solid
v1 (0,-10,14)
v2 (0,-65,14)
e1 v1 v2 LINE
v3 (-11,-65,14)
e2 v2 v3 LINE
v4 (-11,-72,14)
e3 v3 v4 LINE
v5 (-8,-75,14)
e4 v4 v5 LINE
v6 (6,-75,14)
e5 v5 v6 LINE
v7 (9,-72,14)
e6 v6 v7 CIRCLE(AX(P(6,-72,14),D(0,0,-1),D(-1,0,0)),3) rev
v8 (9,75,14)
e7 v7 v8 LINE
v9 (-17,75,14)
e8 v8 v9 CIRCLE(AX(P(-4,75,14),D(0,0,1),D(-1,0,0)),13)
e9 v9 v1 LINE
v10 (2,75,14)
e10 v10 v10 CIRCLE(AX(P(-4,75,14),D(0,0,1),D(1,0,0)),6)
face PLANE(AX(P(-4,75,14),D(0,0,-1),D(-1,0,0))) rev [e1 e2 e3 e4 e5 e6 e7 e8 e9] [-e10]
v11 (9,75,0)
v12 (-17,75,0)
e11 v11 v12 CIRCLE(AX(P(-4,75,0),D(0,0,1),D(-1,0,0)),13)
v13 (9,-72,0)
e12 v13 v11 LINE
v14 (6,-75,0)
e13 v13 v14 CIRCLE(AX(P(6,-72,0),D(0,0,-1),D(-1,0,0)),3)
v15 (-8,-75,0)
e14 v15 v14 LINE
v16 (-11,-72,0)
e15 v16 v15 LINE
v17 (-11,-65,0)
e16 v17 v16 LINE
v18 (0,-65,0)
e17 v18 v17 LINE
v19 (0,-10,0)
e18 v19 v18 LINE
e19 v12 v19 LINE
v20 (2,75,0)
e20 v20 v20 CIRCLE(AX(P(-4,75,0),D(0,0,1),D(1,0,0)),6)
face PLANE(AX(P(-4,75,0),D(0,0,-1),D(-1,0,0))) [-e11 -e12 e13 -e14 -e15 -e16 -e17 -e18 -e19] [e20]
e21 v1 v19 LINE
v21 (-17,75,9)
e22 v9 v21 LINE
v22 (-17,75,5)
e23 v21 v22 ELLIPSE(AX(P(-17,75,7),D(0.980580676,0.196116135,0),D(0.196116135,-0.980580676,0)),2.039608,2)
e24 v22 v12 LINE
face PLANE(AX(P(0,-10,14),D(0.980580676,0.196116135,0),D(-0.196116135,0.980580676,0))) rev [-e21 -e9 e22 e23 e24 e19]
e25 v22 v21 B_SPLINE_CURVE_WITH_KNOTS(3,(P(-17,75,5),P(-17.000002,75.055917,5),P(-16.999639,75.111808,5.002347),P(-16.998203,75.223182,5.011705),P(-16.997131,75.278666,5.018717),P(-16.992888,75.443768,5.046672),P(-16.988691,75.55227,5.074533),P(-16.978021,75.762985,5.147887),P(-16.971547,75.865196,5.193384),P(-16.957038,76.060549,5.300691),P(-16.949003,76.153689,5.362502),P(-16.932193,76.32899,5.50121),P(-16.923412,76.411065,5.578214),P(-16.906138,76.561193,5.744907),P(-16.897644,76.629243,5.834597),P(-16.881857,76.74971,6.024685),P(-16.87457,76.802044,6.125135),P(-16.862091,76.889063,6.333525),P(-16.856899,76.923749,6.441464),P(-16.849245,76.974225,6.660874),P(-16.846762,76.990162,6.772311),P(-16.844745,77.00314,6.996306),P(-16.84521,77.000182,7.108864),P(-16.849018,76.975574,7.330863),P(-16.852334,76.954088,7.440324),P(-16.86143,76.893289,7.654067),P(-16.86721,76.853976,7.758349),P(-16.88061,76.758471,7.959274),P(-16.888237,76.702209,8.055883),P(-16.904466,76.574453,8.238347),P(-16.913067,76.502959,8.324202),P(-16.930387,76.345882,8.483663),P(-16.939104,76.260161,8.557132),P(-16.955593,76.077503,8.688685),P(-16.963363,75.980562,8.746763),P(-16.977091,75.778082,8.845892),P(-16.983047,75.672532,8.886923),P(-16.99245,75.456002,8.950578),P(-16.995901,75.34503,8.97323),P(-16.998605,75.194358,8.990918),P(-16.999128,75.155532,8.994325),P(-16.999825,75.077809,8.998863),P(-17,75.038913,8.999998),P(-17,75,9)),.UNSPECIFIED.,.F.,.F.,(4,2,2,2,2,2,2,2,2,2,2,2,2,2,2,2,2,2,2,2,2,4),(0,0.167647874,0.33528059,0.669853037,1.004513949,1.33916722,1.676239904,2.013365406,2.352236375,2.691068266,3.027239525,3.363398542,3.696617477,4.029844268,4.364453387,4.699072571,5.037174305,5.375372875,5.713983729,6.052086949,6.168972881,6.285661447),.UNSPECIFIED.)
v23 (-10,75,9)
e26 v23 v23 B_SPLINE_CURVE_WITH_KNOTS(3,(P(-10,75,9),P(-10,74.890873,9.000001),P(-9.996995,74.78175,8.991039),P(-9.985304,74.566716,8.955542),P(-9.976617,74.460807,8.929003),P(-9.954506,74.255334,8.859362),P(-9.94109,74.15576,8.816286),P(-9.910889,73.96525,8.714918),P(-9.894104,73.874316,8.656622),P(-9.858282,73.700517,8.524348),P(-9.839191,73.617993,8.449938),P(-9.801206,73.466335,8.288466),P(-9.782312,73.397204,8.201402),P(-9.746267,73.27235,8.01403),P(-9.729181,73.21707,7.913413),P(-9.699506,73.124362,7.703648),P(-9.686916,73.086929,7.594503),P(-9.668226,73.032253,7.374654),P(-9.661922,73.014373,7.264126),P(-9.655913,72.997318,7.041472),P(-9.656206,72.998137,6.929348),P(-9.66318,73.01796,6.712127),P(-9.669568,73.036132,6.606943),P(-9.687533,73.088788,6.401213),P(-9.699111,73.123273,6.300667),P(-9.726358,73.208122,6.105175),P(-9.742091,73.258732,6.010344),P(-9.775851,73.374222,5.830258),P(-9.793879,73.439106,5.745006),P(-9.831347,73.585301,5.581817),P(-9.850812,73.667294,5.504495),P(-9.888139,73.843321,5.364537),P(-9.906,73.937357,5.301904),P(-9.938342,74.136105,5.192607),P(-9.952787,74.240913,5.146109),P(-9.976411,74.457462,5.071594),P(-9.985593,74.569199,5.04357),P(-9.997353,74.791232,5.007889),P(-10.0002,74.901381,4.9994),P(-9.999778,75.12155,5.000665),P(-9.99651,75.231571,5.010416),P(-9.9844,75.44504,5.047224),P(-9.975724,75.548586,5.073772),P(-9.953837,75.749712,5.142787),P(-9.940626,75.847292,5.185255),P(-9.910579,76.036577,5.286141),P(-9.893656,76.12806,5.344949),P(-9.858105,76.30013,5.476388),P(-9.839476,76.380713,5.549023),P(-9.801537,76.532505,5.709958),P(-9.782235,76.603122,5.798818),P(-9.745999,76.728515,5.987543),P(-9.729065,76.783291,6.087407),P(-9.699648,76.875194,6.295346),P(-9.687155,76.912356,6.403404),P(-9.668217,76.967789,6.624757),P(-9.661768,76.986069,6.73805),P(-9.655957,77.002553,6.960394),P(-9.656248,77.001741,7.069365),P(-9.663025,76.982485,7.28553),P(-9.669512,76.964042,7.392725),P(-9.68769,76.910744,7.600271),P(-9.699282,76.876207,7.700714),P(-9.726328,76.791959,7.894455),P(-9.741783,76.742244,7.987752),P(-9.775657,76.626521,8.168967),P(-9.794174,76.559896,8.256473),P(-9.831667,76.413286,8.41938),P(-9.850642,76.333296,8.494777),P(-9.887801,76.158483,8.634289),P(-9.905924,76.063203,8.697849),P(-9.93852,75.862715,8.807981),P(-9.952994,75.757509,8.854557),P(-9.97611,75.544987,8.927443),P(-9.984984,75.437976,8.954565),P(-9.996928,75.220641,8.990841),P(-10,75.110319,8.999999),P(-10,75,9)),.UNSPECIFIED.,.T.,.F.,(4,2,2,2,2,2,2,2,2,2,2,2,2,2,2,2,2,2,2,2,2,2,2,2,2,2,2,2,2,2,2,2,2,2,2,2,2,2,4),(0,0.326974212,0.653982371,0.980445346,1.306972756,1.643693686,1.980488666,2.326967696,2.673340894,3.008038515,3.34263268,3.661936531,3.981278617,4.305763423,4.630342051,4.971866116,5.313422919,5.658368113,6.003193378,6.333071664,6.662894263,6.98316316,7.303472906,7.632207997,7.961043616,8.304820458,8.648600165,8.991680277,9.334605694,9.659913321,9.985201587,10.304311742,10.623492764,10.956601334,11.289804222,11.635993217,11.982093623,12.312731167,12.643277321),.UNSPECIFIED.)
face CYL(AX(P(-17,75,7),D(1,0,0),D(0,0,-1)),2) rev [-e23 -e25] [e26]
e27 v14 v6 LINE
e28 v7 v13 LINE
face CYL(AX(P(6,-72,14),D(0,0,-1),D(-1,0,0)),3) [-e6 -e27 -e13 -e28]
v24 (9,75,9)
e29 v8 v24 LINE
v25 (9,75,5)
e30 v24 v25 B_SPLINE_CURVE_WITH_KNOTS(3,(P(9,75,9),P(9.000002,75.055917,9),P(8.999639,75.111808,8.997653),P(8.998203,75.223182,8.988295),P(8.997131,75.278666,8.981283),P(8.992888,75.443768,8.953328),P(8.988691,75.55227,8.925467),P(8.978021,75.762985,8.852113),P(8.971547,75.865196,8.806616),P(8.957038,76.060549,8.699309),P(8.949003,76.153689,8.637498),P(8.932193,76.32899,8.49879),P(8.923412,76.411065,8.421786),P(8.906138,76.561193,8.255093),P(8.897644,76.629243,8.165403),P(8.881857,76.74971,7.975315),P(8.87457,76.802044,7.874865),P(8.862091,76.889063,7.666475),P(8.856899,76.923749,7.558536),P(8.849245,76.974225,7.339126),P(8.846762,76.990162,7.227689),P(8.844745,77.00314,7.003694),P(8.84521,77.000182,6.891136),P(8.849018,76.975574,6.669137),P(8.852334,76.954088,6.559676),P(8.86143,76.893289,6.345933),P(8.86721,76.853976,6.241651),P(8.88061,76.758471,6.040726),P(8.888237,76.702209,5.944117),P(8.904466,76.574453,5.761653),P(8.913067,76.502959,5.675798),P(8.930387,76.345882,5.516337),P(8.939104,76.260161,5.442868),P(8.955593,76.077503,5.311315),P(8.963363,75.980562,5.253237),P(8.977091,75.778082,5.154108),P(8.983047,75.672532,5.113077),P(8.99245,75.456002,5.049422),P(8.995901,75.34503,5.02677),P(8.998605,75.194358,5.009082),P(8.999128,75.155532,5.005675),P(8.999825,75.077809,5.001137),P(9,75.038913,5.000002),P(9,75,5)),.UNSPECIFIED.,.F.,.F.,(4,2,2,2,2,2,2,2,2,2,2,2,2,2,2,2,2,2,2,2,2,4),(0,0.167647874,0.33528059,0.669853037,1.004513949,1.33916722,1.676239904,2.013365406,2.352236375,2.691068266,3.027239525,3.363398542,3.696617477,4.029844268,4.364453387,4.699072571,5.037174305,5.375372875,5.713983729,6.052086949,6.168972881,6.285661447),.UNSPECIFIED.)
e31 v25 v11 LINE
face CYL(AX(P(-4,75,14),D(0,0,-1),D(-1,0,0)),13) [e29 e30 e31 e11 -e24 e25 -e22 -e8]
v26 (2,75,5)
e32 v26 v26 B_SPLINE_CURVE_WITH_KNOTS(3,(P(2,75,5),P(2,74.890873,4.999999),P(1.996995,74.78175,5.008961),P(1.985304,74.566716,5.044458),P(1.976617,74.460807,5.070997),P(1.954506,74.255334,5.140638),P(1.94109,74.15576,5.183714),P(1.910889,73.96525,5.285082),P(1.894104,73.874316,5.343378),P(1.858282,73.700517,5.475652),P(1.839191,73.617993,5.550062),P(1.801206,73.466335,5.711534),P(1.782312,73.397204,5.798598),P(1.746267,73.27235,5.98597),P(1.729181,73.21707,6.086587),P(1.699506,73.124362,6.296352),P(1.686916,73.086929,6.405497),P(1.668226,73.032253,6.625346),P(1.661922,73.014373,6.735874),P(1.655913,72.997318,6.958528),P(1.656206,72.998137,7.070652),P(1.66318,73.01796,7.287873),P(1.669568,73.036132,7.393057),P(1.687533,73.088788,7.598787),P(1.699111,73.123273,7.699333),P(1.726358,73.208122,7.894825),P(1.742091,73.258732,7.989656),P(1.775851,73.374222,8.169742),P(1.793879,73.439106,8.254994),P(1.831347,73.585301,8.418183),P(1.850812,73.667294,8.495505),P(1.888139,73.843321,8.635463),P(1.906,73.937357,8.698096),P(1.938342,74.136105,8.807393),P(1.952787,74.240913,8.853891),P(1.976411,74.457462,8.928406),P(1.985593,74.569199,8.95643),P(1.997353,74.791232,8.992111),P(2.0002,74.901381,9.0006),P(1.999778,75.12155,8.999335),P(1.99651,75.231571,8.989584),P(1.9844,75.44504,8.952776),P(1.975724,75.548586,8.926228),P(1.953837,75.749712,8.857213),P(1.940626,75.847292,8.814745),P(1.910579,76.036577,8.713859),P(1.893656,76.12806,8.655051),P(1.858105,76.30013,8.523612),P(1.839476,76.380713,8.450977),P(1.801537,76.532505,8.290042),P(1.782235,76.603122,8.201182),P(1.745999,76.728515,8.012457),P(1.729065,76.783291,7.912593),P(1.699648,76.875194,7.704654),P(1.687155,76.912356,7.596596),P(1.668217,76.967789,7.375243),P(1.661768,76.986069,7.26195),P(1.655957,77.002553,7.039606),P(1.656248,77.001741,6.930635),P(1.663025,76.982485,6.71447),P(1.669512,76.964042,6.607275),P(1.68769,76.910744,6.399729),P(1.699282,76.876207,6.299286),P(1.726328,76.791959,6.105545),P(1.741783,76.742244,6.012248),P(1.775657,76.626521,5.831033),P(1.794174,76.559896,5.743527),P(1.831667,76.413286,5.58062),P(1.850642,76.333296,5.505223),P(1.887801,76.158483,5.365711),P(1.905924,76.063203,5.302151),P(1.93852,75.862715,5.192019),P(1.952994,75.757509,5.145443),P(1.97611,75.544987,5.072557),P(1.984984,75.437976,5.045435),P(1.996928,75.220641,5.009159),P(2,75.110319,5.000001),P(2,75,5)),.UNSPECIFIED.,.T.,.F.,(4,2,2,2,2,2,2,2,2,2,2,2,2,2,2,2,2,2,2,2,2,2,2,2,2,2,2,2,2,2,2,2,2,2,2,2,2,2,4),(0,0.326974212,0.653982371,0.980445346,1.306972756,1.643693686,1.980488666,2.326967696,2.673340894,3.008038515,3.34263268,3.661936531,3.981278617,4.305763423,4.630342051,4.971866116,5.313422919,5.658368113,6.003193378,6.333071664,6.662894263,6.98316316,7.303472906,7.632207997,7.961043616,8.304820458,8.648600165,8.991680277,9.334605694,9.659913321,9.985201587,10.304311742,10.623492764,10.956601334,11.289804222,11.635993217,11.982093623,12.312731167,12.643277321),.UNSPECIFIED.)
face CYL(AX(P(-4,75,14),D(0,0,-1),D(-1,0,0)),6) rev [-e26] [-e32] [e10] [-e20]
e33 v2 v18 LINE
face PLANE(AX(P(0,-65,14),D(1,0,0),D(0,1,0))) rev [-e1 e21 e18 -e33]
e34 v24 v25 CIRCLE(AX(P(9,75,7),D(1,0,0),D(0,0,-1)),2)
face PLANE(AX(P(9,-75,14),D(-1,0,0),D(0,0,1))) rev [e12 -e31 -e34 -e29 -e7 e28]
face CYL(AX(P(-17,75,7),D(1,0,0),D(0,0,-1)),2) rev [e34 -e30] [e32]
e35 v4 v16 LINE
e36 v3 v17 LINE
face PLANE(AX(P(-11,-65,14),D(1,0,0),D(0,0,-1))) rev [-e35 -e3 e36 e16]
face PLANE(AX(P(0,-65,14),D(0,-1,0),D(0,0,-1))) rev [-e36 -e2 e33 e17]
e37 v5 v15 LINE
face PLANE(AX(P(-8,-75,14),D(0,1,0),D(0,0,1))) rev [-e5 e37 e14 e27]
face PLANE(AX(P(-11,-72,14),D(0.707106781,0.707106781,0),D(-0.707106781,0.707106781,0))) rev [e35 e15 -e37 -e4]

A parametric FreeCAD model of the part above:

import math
import FreeCAD as App
import Part
import Sketcher

V = App.Vector
Q = App.Units.Quantity


def edges_at(feature, points):
    """Names of the edges that pass closest to the given points."""
    edges = feature.Shape.Edges
    near = lambda p: min(range(len(edges)), key=lambda i: edges[i].distToShape(Part.Vertex(*p))[0])
    return sorted({f"Edge{near(p) + 1}" for p in points})

doc = App.newDocument("Part")
body = doc.addObject("PartDesign::Body", "Body")

# Sketch on XY plane
sketch1 = doc.addObject("Sketcher::SketchObject", "Sketch")
body.addObject(sketch1)
sketch1.AttachmentSupport = (doc.XY_Plane, [""])
sketch1.MapMode = "FlatFace"
sketch1.addGeometry([
    Part.LineSegment(V(0, -65, 0), V(-11, -65, 0)),  # 0
    Part.LineSegment(V(-11, -65, 0), V(-11, -72, 0)),  # 1
    Part.LineSegment(V(-11, -72, 0), V(-8, -75, 0)),  # 2
    Part.LineSegment(V(-8, -75, 0), V(9, -75, 0)),  # 3
    Part.LineSegment(V(9, -75, 0), V(9, 75, 0)),  # 4
    Part.ArcOfCircle(Part.Circle(V(-4, 75, 0), V(0, 0, 1), 13), math.radians(0), math.radians(180)),  # 5
    Part.LineSegment(V(-17, 75, 0), V(0, -10, 0)),  # 6
    Part.LineSegment(V(0, -10, 0), V(0, -65, 0)),  # 7
    Part.Circle(V(-4, 75, 0), V(0, 0, 1), 6),  # 8
], False)
sketch1.addConstraint([
    Sketcher.Constraint("Coincident", 0, 2, 1, 1),
    Sketcher.Constraint("Coincident", 1, 2, 2, 1),
    Sketcher.Constraint("Coincident", 2, 2, 3, 1),
    Sketcher.Constraint("Coincident", 3, 2, 4, 1),
    Sketcher.Constraint("Tangent", 4, 2, 5, 1),
    Sketcher.Constraint("Coincident", 5, 2, 6, 1),
    Sketcher.Constraint("Coincident", 6, 2, 7, 1),
    Sketcher.Constraint("Coincident", 7, 2, 0, 1),
    Sketcher.Constraint("Horizontal", 0),
    Sketcher.Constraint("Vertical", 1),
    Sketcher.Constraint("Horizontal", 3),
    Sketcher.Constraint("Vertical", 4),
    Sketcher.Constraint("Vertical", 7),
    Sketcher.Constraint("Coincident", 8, 3, 5, 3),
    Sketcher.Constraint("PointOnObject", 6, 2, -2),
    Sketcher.Constraint("Horizontal", 4, 2, 5, 2),
    Sketcher.Constraint("Diameter", 8, Q("12 mm")),
    Sketcher.Constraint("Radius", 5, Q("13 mm")),
    Sketcher.Constraint("DistanceX", 0, 2, 0, 1, Q("11 mm")),
    Sketcher.Constraint("DistanceX", 3, 1, 3, 2, Q("17 mm")),
    Sketcher.Constraint("DistanceY", 1, 2, 1, 1, Q("7 mm")),
    Sketcher.Constraint("DistanceY", 4, 1, 4, 2, Q("150 mm")),
    Sketcher.Constraint("DistanceY", 7, 2, 7, 1, Q("55 mm")),
    Sketcher.Constraint("Angle", 2, Q("-45 deg")),
    Sketcher.Constraint("DistanceX", 5, 3, -1, 1, Q("4 mm")),
    Sketcher.Constraint("DistanceY", -1, 1, 5, 3, Q("75 mm")),
])
pad1 = doc.addObject("PartDesign::Pad", "Pad")
body.addObject(pad1)
pad1.Profile = sketch1
pad1.Length = 14

# Sketch on YZ plane
sketch2 = doc.addObject("Sketcher::SketchObject", "Sketch001")
body.addObject(sketch2)
sketch2.AttachmentSupport = (doc.YZ_Plane, [""])
sketch2.MapMode = "FlatFace"
sketch2.AttachmentOffset = App.Placement(V(0, 0, 9), App.Rotation())
sketch2.addGeometry(Part.Circle(V(75, 7, 0), V(0, 0, 1), 2), False)
sketch2.addConstraint([
    Sketcher.Constraint("Diameter", 0, Q("4 mm")),
    Sketcher.Constraint("DistanceX", -1, 1, 0, 3, Q("75 mm")),
    Sketcher.Constraint("DistanceY", -1, 1, 0, 3, Q("7 mm")),
])
pocket1 = doc.addObject("PartDesign::Pocket", "Pocket")
body.addObject(pocket1)
pocket1.Profile = sketch2
pocket1.Type = "ThroughAll"
doc.recompute()

fillet = doc.addObject("PartDesign::Fillet", "Fillet")
body.addObject(fillet)
fillet.Base = (pocket1, edges_at(pocket1, [(9, -75, 7)]))
fillet.Radius = 3

doc.recompute()
